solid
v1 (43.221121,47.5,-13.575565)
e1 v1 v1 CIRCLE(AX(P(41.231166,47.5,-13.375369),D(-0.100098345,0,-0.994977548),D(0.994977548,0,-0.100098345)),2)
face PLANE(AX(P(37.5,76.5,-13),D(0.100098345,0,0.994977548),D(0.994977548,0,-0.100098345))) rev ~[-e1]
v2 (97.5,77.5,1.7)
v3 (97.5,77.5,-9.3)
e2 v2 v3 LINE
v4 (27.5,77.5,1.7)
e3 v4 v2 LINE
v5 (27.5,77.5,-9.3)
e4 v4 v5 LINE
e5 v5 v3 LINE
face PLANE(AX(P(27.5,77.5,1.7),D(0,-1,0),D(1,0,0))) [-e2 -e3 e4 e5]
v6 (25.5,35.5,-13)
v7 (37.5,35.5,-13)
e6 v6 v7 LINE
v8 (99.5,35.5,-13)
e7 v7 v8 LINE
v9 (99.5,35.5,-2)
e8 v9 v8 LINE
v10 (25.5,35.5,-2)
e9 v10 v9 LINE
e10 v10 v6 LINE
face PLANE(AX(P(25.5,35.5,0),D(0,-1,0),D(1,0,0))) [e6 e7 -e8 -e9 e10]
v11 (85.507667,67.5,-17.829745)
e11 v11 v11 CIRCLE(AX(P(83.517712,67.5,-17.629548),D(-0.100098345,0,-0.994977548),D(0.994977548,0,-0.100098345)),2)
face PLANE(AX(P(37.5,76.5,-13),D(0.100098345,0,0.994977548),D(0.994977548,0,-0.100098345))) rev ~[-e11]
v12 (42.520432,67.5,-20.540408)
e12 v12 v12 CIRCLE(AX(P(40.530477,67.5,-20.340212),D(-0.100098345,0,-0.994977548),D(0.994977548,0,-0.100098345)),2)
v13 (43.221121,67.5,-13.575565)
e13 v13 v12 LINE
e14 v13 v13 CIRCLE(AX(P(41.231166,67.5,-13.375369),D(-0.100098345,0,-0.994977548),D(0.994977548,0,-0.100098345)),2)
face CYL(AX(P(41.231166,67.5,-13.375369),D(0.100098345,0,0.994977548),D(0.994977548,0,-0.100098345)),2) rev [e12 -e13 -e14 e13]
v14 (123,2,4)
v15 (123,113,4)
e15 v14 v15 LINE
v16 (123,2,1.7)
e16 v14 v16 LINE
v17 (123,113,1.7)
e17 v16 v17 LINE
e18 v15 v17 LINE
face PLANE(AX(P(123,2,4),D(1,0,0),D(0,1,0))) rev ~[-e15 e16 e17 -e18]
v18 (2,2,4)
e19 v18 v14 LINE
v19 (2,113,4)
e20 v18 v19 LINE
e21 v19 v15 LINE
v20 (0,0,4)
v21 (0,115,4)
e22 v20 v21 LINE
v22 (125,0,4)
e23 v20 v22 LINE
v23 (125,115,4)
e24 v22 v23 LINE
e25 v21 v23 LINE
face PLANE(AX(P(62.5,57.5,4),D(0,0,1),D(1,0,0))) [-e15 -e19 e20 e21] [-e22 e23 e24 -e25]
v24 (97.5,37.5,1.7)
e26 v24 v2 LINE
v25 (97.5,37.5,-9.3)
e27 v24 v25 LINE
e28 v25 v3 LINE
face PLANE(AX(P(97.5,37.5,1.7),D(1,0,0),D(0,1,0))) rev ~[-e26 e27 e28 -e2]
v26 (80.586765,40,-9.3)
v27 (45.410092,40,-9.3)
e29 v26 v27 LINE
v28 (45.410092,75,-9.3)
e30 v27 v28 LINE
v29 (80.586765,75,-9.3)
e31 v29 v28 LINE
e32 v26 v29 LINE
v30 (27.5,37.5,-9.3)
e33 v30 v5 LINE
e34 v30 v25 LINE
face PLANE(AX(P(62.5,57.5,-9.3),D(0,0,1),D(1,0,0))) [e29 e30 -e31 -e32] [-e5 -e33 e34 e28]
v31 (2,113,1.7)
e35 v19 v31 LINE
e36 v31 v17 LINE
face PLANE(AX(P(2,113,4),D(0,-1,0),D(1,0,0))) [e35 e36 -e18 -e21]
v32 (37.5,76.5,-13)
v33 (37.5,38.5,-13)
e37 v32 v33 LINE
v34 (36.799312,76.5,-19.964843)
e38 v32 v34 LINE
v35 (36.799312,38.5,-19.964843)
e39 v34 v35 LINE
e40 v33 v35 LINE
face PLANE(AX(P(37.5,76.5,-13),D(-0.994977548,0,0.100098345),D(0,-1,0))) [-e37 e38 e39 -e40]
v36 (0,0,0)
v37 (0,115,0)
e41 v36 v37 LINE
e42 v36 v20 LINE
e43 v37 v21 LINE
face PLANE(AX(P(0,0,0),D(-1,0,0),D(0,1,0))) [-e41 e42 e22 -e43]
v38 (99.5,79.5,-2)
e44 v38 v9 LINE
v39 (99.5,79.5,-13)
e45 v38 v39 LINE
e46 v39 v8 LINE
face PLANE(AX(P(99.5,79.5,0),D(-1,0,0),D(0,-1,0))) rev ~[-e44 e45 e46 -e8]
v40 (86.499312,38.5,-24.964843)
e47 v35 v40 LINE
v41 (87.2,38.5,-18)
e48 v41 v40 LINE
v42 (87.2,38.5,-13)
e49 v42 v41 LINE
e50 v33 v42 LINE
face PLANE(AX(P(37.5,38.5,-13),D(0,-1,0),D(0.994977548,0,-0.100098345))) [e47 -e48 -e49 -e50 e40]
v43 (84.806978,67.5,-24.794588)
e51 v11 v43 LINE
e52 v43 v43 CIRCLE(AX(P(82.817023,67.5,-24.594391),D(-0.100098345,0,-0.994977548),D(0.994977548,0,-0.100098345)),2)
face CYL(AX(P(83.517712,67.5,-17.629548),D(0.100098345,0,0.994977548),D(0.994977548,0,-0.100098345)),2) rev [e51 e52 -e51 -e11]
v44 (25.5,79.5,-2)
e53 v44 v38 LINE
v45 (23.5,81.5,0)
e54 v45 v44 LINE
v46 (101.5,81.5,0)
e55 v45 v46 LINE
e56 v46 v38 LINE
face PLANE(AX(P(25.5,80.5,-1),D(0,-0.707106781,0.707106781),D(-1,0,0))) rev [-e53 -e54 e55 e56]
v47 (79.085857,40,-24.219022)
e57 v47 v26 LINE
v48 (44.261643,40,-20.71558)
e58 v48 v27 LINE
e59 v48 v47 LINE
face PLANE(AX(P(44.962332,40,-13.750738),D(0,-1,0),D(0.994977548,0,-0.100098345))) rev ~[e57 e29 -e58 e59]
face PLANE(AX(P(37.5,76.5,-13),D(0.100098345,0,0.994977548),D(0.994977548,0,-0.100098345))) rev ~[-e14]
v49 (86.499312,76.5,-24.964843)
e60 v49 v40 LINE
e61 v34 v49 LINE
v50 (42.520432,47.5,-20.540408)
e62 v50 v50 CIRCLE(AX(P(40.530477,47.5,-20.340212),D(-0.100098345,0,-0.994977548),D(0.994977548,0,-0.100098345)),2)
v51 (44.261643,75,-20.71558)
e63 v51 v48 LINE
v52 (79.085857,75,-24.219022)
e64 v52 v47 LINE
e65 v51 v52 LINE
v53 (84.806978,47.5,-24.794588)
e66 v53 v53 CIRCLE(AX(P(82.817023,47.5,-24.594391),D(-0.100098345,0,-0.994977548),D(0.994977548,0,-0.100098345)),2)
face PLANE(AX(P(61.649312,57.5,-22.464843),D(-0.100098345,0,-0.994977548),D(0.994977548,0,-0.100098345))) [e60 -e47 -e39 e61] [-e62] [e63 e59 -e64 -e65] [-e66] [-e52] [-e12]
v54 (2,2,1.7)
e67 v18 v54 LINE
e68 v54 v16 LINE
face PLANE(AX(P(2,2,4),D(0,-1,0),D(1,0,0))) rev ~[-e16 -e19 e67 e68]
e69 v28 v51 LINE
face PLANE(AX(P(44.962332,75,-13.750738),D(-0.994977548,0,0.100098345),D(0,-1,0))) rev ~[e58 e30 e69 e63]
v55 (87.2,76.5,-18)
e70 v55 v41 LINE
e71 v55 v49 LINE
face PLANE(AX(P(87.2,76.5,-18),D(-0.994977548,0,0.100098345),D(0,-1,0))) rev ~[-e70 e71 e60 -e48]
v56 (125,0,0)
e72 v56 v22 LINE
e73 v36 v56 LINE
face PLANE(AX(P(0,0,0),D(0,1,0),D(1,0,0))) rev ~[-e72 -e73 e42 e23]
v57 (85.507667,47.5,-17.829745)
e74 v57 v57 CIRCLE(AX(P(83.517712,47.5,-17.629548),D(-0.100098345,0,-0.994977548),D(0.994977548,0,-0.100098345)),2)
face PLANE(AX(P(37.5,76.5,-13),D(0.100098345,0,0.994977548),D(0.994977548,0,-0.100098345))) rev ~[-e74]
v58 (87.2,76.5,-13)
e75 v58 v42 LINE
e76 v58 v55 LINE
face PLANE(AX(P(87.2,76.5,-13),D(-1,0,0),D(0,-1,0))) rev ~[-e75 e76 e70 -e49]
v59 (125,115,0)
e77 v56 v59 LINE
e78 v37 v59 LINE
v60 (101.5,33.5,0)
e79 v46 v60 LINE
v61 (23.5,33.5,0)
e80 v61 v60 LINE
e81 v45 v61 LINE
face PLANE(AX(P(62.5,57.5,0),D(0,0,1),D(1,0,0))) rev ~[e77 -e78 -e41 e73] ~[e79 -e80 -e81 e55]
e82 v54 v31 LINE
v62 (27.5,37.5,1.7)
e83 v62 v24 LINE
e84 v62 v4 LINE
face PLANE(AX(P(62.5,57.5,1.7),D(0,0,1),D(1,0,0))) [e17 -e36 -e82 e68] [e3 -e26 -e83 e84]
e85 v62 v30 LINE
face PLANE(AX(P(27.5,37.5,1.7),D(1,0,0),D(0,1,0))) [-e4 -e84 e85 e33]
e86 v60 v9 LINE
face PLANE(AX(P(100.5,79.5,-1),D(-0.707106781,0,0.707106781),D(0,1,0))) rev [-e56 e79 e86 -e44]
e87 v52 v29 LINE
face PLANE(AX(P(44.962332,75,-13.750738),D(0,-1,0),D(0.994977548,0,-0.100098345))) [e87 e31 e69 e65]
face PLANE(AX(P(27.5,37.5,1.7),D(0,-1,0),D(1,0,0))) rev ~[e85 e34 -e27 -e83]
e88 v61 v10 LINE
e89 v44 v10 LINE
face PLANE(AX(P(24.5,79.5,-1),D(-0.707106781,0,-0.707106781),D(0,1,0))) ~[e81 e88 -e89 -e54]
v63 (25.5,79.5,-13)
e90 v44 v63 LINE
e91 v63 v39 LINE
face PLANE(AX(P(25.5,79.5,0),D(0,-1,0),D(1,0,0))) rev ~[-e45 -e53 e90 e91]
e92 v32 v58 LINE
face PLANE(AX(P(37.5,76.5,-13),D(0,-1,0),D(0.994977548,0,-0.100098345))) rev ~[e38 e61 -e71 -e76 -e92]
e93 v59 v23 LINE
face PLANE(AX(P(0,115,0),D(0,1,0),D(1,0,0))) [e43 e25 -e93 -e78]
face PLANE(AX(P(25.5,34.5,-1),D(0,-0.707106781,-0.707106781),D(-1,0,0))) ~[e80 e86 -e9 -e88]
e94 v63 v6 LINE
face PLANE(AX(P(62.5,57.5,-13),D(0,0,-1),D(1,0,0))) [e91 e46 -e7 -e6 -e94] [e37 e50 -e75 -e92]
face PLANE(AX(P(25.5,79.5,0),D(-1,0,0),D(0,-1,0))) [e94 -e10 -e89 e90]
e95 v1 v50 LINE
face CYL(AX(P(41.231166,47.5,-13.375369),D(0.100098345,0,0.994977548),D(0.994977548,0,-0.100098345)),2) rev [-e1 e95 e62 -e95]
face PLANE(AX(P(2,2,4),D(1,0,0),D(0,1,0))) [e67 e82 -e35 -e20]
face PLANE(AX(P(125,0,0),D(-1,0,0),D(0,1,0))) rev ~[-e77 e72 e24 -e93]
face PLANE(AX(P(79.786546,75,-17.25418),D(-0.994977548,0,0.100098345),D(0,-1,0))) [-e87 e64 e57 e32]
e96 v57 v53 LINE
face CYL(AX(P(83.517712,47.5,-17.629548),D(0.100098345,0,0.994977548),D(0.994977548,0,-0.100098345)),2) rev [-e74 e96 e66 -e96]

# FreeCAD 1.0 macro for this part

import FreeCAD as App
import Part
import Sketcher

V = App.Vector
Q = App.Units.Quantity


def edges_at(feature, points):
    """Names of the edges that pass closest to the given points."""
    edges = feature.Shape.Edges
    near = lambda p: min(range(len(edges)), key=lambda i: edges[i].distToShape(Part.Vertex(*p))[0])
    return sorted({f"Edge{near(p) + 1}" for p in points})

doc = App.newDocument("Part")
body = doc.addObject("PartDesign::Body", "Body")

# Sketch on XY plane
sketch1 = doc.addObject("Sketcher::SketchObject", "Sketch")
body.addObject(sketch1)
sketch1.AttachmentSupport = (doc.XY_Plane, [""])
sketch1.MapMode = "FlatFace"
sketch1.addGeometry([
    Part.LineSegment(V(0, 115, 0), V(0, 0, 0)),
    Part.LineSegment(V(0, 0, 0), V(125, 0, 0)),
    Part.LineSegment(V(125, 0, 0), V(125, 115, 0)),
    Part.LineSegment(V(125, 115, 0), V(0, 115, 0)),
], False)
sketch1.addConstraint([
    Sketcher.Constraint("Coincident", 0, 2, 1, 1),
    Sketcher.Constraint("Coincident", 1, 2, 2, 1),
    Sketcher.Constraint("Coincident", 2, 2, 3, 1),
    Sketcher.Constraint("Coincident", 3, 2, 0, 1),
    Sketcher.Constraint("Vertical", 0),
    Sketcher.Constraint("Horizontal", 1),
    Sketcher.Constraint("Vertical", 2),
    Sketcher.Constraint("Horizontal", 3),
    Sketcher.Constraint("Coincident", 0, 2, -1, 1),
    Sketcher.Constraint("DistanceX", 1, 1, 1, 2, Q("125 mm")),
    Sketcher.Constraint("DistanceY", 0, 2, 0, 1, Q("115 mm")),
])
pad1 = doc.addObject("PartDesign::Pad", "Pad")
body.addObject(pad1)
pad1.Profile = sketch1
pad1.Length = 4

# Sketch on XY plane
sketch2 = doc.addObject("Sketcher::SketchObject", "Sketch001")
body.addObject(sketch2)
sketch2.AttachmentSupport = (doc.XY_Plane, [""])
sketch2.MapMode = "FlatFace"
sketch2.AttachmentOffset = App.Placement(V(0, 0, 4), App.Rotation())
sketch2.addGeometry([
    Part.LineSegment(V(2, 113, 0), V(2, 2, 0)),
    Part.LineSegment(V(2, 2, 0), V(123, 2, 0)),
    Part.LineSegment(V(123, 2, 0), V(123, 113, 0)),
    Part.LineSegment(V(123, 113, 0), V(2, 113, 0)),
], False)
sketch2.addConstraint([
    Sketcher.Constraint("Coincident", 0, 2, 1, 1),
    Sketcher.Constraint("Coincident", 1, 2, 2, 1),
    Sketcher.Constraint("Coincident", 2, 2, 3, 1),
    Sketcher.Constraint("Coincident", 3, 2, 0, 1),
    Sketcher.Constraint("Vertical", 0),
    Sketcher.Constraint("Horizontal", 1),
    Sketcher.Constraint("Vertical", 2),
    Sketcher.Constraint("Horizontal", 3),
    Sketcher.Constraint("DistanceX", 1, 1, 1, 2, Q("121 mm")),
    Sketcher.Constraint("DistanceY", 0, 2, 0, 1, Q("111 mm")),
    Sketcher.Constraint("DistanceX", -1, 1, 0, 2, Q("2 mm")),
    Sketcher.Constraint("DistanceY", -1, 1, 0, 2, Q("2 mm")),
])
pocket1 = doc.addObject("PartDesign::Pocket", "Pocket")
body.addObject(pocket1)
pocket1.Profile = sketch2
pocket1.Length = 2.3

# Sketch on XY plane
sketch3 = doc.addObject("Sketcher::SketchObject", "Sketch002")
body.addObject(sketch3)
sketch3.AttachmentSupport = (doc.XY_Plane, [""])
sketch3.MapMode = "FlatFace"
sketch3.addGeometry([
    Part.LineSegment(V(26, 36, 0), V(26, 80, 0)),
    Part.LineSegment(V(26, 80, 0), V(100, 80, 0)),
    Part.LineSegment(V(100, 80, 0), V(100, 36, 0)),
    Part.LineSegment(V(100, 36, 0), V(26, 36, 0)),
], False)
sketch3.addConstraint([
    Sketcher.Constraint("Coincident", 0, 2, 1, 1),
    Sketcher.Constraint("Coincident", 1, 2, 2, 1),
    Sketcher.Constraint("Coincident", 2, 2, 3, 1),
    Sketcher.Constraint("Coincident", 3, 2, 0, 1),
    Sketcher.Constraint("Vertical", 0),
    Sketcher.Constraint("Horizontal", 1),
    Sketcher.Constraint("Vertical", 2),
    Sketcher.Constraint("Horizontal", 3),
    Sketcher.Constraint("DistanceX", 1, 1, 1, 2, Q("74 mm")),
    Sketcher.Constraint("DistanceY", 0, 1, 0, 2, Q("44 mm")),
    Sketcher.Constraint("DistanceX", -1, 1, 0, 2, Q("25.5 mm")),
    Sketcher.Constraint("DistanceY", -1, 1, 0, 2, Q("79.5 mm")),
])
pad2 = doc.addObject("PartDesign::Pad", "Pad001")
body.addObject(pad2)
pad2.Profile = sketch3
pad2.Length = 13
pad2.Reversed = True
doc.recompute()

chamfer = doc.addObject("PartDesign::Chamfer", "Chamfer")
body.addObject(chamfer)
chamfer.Base = (pad2, edges_at(pad2, [
    (62.5, 35.5, 0),
    (99.5, 57.5, 0),
    (62.5, 79.5, 0),
    (25.5, 57.5, 0),
]))
chamfer.Size = 2

# Sketch on XY plane
sketch4 = doc.addObject("Sketcher::SketchObject", "Sketch003")
body.addObject(sketch4)
sketch4.AttachmentSupport = (doc.XY_Plane, [""])
sketch4.MapMode = "FlatFace"
sketch4.AttachmentOffset = App.Placement(V(0, 0, 1.7), App.Rotation())
sketch4.addGeometry([
    Part.LineSegment(V(28, 78, 0), V(28, 38, 0)),
    Part.LineSegment(V(28, 38, 0), V(98, 38, 0)),
    Part.LineSegment(V(98, 38, 0), V(98, 78, 0)),
    Part.LineSegment(V(98, 78, 0), V(28, 78, 0)),
], False)
sketch4.addConstraint([
    Sketcher.Constraint("Coincident", 0, 2, 1, 1),
    Sketcher.Constraint("Coincident", 1, 2, 2, 1),
    Sketcher.Constraint("Coincident", 2, 2, 3, 1),
    Sketcher.Constraint("Coincident", 3, 2, 0, 1),
    Sketcher.Constraint("Vertical", 0),
    Sketcher.Constraint("Horizontal", 1),
    Sketcher.Constraint("Vertical", 2),
    Sketcher.Constraint("Horizontal", 3),
    Sketcher.Constraint("DistanceX", 1, 1, 1, 2, Q("70 mm")),
    Sketcher.Constraint("DistanceY", 0, 2, 0, 1, Q("40 mm")),
    Sketcher.Constraint("DistanceX", -1, 1, 0, 2, Q("27.5 mm")),
    Sketcher.Constraint("DistanceY", -1, 1, 0, 2, Q("37.5 mm")),
])
pocket2 = doc.addObject("PartDesign::Pocket", "Pocket001")
body.addObject(pocket2)
pocket2.Profile = sketch4
pocket2.Length = 11

# Sketch on XY plane
sketch5 = doc.addObject("Sketcher::SketchObject", "Sketch004")
body.addObject(sketch5)
sketch5.AttachmentSupport = (doc.XY_Plane, [""])
sketch5.MapMode = "FlatFace"
sketch5.AttachmentOffset = App.Placement(V(0, 0, -13), App.Rotation())
sketch5.addGeometry([
    Part.LineSegment(V(38, 38, 0), V(38, 76, 0)),
    Part.LineSegment(V(38, 76, 0), V(87, 76, 0)),
    Part.LineSegment(V(87, 76, 0), V(87, 38, 0)),
    Part.LineSegment(V(87, 38, 0), V(38, 38, 0)),
], False)
sketch5.addConstraint([
    Sketcher.Constraint("Coincident", 0, 2, 1, 1),
    Sketcher.Constraint("Coincident", 1, 2, 2, 1),
    Sketcher.Constraint("Coincident", 2, 2, 3, 1),
    Sketcher.Constraint("Coincident", 3, 2, 0, 1),
    Sketcher.Constraint("Vertical", 0),
    Sketcher.Constraint("Horizontal", 1),
    Sketcher.Constraint("Vertical", 2),
    Sketcher.Constraint("Horizontal", 3),
    Sketcher.Constraint("DistanceY", 0, 1, 0, 2, Q("38 mm")),
    Sketcher.Constraint("DistanceX", 1, 1, 1, 2, Q("49.7 mm")),
    Sketcher.Constraint("DistanceX", -1, 1, 0, 2, Q("37.5 mm")),
    Sketcher.Constraint("DistanceY", -1, 1, 0, 2, Q("76.5 mm")),
])
pad3 = doc.addObject("PartDesign::Pad", "Pad002")
body.addObject(pad3)
pad3.Profile = sketch5
pad3.Length = 5
pad3.Reversed = True

# Sketch on XZ plane
sketch6 = doc.addObject("Sketcher::SketchObject", "Sketch005")
body.addObject(sketch6)
sketch6.AttachmentSupport = (doc.XZ_Plane, [""])
sketch6.MapMode = "FlatFace"
sketch6.AttachmentOffset = App.Placement(V(0, 0, -76.5), App.Rotation())
sketch6.addGeometry([
    Part.LineSegment(V(38, -13, 0), V(87, -18, 0)),
    Part.LineSegment(V(87, -18, 0), V(38, -18, 0)),
    Part.LineSegment(V(38, -18, 0), V(38, -13, 0)),
], False)
sketch6.addConstraint([
    Sketcher.Constraint("Coincident", 0, 2, 1, 1),
    Sketcher.Constraint("Coincident", 1, 2, 2, 1),
    Sketcher.Constraint("Coincident", 2, 2, 0, 1),
    Sketcher.Constraint("Horizontal", 1),
    Sketcher.Constraint("Vertical", 2),
    Sketcher.Constraint("DistanceY", 2, 1, 2, 2, Q("5 mm")),
    Sketcher.Constraint("DistanceX", 1, 2, 1, 1, Q("49.7 mm")),
    Sketcher.Constraint("DistanceY", 0, 2, -1, 1, Q("18 mm")),
    Sketcher.Constraint("DistanceX", -1, 1, 0, 2, Q("87.2 mm")),
])
pocket3 = doc.addObject("PartDesign::Pocket", "Pocket002")
body.addObject(pocket3)
pocket3.Profile = sketch6
pocket3.Type = "ThroughAll"
pocket3.Reversed = True

# Sketch on an angled plane
sketch7 = doc.addObject("Sketcher::SketchObject", "Sketch006")
body.addObject(sketch7)
sketch7.Placement = App.Placement(V(-0.919005, 0, -9.134909), App.Rotation(V(0.994977548, 0, -0.100098345), V(0, -1, 0), V(-0.100098345, 0, -0.994977548), "ZXY"))
sketch7.addGeometry([
    Part.LineSegment(V(38.6, -38.5, 0), V(38.6, -76.5, 0)),  # 0
    Part.LineSegment(V(38.6, -76.5, 0), V(88.6, -76.5, 0)),  # 1
    Part.LineSegment(V(88.6, -76.5, 0), V(88.6, -38.5, 0)),  # 2
    Part.LineSegment(V(88.6, -38.5, 0), V(38.6, -38.5, 0)),  # 3
    Part.Circle(V(42.4, -67.5, 0), V(0, 0, 1), 2),  # 4
    Part.Circle(V(84.9, -67.5, 0), V(0, 0, 1), 2),  # 5
    Part.Circle(V(42.4, -47.5, 0), V(0, 0, 1), 2),  # 6
    Part.LineSegment(V(81.1, -75, 0), V(46.1, -75, 0)),  # 7
    Part.LineSegment(V(46.1, -75, 0), V(46.1, -40, 0)),  # 8
    Part.LineSegment(V(46.1, -40, 0), V(81.1, -40, 0)),  # 9
    Part.LineSegment(V(81.1, -40, 0), V(81.1, -75, 0)),  # 10
    Part.Circle(V(84.9, -47.5, 0), V(0, 0, 1), 2),  # 11
], False)
sketch7.addConstraint([
    Sketcher.Constraint("Coincident", 0, 2, 1, 1),
    Sketcher.Constraint("Coincident", 1, 2, 2, 1),
    Sketcher.Constraint("Coincident", 2, 2, 3, 1),
    Sketcher.Constraint("Coincident", 3, 2, 0, 1),
    Sketcher.Constraint("Coincident", 7, 2, 8, 1),
    Sketcher.Constraint("Coincident", 8, 2, 9, 1),
    Sketcher.Constraint("Coincident", 9, 2, 10, 1),
    Sketcher.Constraint("Coincident", 10, 2, 7, 1),
    Sketcher.Constraint("Vertical", 0),
    Sketcher.Constraint("Horizontal", 1),
    Sketcher.Constraint("Vertical", 2),
    Sketcher.Constraint("Horizontal", 3),
    Sketcher.Constraint("Horizontal", 7),
    Sketcher.Constraint("Vertical", 8),
    Sketcher.Constraint("Horizontal", 9),
    Sketcher.Constraint("Vertical", 10),
    Sketcher.Constraint("Equal", 4, 5),
    Sketcher.Constraint("Equal", 5, 6),
    Sketcher.Constraint("Equal", 6, 11),
    Sketcher.Constraint("Horizontal", 4, 3, 5, 3),
    Sketcher.Constraint("Horizontal", 6, 3, 11, 3),
    Sketcher.Constraint("Vertical", 4, 3, 6, 3),
    Sketcher.Constraint("Vertical", 5, 3, 11, 3),
    Sketcher.Constraint("Equal", 9, 8),
    Sketcher.Constraint("Diameter", 4, Q("4 mm")),
    Sketcher.Constraint("DistanceX", 7, 2, 7, 1, Q("35 mm")),
    Sketcher.Constraint("DistanceY", 0, 2, 0, 1, Q("38 mm")),
    Sketcher.Constraint("DistanceY", 7, 2, -1, 1, Q("75 mm")),
    Sketcher.Constraint("DistanceY", 4, 3, 6, 3, Q("20 mm")),
    Sketcher.Constraint("DistanceY", 0, 2, 4, 3, Q("9 mm")),
    Sketcher.Constraint("DistanceY", 4, 3, -1, 1, Q("67.5 mm")),
    Sketcher.Constraint("DistanceX", 4, 3, 5, 3, Q("42.5 mm")),
    Sketcher.Constraint("DistanceX", 0, 2, 7, 2, Q("7.5 mm")),
    Sketcher.Constraint("DistanceX", 0, 2, 4, 3, Q("3.75 mm")),
    Sketcher.Constraint("DistanceX", 1, 1, 1, 2, Q("49.950876 mm")),
    Sketcher.Constraint("DistanceX", -1, 1, 4, 3, Q("42.362937 mm")),
])
pad4 = doc.addObject("PartDesign::Pad", "Pad003")
body.addObject(pad4)
pad4.Profile = sketch7
pad4.Length = 7

# Sketch on an angled plane
sketch8 = doc.addObject("Sketcher::SketchObject", "Sketch007")
body.addObject(sketch8)
sketch8.Placement = App.Placement(V(-0.919005, 0, -9.134909), App.Rotation(V(0.994977548, 0, -0.100098345), V(0, -1, 0), V(-0.100098345, 0, -0.994977548), "ZXY"))
sketch8.addGeometry([
    Part.LineSegment(V(46, -40, 0), V(46, -75, 0)),
    Part.LineSegment(V(46, -75, 0), V(81, -75, 0)),
    Part.LineSegment(V(81, -75, 0), V(81, -40, 0)),
    Part.LineSegment(V(81, -40, 0), V(46, -40, 0)),
], False)
sketch8.addConstraint([
    Sketcher.Constraint("Coincident", 0, 2, 1, 1),
    Sketcher.Constraint("Coincident", 1, 2, 2, 1),
    Sketcher.Constraint("Coincident", 2, 2, 3, 1),
    Sketcher.Constraint("Coincident", 3, 2, 0, 1),
    Sketcher.Constraint("Vertical", 0),
    Sketcher.Constraint("Horizontal", 1),
    Sketcher.Constraint("Vertical", 2),
    Sketcher.Constraint("Horizontal", 3),
    Sketcher.Constraint("Equal", 3, 0),
    Sketcher.Constraint("DistanceX", 1, 1, 1, 2, Q("35 mm")),
    Sketcher.Constraint("DistanceY", 0, 2, -1, 1, Q("75 mm")),
    Sketcher.Constraint("DistanceX", -1, 1, 0, 2, Q("46.112937 mm")),
])
pocket4 = doc.addObject("PartDesign::Pocket", "Pocket003")
body.addObject(pocket4)
pocket4.Profile = sketch8
pocket4.Type = "ThroughAll"

doc.recompute()
